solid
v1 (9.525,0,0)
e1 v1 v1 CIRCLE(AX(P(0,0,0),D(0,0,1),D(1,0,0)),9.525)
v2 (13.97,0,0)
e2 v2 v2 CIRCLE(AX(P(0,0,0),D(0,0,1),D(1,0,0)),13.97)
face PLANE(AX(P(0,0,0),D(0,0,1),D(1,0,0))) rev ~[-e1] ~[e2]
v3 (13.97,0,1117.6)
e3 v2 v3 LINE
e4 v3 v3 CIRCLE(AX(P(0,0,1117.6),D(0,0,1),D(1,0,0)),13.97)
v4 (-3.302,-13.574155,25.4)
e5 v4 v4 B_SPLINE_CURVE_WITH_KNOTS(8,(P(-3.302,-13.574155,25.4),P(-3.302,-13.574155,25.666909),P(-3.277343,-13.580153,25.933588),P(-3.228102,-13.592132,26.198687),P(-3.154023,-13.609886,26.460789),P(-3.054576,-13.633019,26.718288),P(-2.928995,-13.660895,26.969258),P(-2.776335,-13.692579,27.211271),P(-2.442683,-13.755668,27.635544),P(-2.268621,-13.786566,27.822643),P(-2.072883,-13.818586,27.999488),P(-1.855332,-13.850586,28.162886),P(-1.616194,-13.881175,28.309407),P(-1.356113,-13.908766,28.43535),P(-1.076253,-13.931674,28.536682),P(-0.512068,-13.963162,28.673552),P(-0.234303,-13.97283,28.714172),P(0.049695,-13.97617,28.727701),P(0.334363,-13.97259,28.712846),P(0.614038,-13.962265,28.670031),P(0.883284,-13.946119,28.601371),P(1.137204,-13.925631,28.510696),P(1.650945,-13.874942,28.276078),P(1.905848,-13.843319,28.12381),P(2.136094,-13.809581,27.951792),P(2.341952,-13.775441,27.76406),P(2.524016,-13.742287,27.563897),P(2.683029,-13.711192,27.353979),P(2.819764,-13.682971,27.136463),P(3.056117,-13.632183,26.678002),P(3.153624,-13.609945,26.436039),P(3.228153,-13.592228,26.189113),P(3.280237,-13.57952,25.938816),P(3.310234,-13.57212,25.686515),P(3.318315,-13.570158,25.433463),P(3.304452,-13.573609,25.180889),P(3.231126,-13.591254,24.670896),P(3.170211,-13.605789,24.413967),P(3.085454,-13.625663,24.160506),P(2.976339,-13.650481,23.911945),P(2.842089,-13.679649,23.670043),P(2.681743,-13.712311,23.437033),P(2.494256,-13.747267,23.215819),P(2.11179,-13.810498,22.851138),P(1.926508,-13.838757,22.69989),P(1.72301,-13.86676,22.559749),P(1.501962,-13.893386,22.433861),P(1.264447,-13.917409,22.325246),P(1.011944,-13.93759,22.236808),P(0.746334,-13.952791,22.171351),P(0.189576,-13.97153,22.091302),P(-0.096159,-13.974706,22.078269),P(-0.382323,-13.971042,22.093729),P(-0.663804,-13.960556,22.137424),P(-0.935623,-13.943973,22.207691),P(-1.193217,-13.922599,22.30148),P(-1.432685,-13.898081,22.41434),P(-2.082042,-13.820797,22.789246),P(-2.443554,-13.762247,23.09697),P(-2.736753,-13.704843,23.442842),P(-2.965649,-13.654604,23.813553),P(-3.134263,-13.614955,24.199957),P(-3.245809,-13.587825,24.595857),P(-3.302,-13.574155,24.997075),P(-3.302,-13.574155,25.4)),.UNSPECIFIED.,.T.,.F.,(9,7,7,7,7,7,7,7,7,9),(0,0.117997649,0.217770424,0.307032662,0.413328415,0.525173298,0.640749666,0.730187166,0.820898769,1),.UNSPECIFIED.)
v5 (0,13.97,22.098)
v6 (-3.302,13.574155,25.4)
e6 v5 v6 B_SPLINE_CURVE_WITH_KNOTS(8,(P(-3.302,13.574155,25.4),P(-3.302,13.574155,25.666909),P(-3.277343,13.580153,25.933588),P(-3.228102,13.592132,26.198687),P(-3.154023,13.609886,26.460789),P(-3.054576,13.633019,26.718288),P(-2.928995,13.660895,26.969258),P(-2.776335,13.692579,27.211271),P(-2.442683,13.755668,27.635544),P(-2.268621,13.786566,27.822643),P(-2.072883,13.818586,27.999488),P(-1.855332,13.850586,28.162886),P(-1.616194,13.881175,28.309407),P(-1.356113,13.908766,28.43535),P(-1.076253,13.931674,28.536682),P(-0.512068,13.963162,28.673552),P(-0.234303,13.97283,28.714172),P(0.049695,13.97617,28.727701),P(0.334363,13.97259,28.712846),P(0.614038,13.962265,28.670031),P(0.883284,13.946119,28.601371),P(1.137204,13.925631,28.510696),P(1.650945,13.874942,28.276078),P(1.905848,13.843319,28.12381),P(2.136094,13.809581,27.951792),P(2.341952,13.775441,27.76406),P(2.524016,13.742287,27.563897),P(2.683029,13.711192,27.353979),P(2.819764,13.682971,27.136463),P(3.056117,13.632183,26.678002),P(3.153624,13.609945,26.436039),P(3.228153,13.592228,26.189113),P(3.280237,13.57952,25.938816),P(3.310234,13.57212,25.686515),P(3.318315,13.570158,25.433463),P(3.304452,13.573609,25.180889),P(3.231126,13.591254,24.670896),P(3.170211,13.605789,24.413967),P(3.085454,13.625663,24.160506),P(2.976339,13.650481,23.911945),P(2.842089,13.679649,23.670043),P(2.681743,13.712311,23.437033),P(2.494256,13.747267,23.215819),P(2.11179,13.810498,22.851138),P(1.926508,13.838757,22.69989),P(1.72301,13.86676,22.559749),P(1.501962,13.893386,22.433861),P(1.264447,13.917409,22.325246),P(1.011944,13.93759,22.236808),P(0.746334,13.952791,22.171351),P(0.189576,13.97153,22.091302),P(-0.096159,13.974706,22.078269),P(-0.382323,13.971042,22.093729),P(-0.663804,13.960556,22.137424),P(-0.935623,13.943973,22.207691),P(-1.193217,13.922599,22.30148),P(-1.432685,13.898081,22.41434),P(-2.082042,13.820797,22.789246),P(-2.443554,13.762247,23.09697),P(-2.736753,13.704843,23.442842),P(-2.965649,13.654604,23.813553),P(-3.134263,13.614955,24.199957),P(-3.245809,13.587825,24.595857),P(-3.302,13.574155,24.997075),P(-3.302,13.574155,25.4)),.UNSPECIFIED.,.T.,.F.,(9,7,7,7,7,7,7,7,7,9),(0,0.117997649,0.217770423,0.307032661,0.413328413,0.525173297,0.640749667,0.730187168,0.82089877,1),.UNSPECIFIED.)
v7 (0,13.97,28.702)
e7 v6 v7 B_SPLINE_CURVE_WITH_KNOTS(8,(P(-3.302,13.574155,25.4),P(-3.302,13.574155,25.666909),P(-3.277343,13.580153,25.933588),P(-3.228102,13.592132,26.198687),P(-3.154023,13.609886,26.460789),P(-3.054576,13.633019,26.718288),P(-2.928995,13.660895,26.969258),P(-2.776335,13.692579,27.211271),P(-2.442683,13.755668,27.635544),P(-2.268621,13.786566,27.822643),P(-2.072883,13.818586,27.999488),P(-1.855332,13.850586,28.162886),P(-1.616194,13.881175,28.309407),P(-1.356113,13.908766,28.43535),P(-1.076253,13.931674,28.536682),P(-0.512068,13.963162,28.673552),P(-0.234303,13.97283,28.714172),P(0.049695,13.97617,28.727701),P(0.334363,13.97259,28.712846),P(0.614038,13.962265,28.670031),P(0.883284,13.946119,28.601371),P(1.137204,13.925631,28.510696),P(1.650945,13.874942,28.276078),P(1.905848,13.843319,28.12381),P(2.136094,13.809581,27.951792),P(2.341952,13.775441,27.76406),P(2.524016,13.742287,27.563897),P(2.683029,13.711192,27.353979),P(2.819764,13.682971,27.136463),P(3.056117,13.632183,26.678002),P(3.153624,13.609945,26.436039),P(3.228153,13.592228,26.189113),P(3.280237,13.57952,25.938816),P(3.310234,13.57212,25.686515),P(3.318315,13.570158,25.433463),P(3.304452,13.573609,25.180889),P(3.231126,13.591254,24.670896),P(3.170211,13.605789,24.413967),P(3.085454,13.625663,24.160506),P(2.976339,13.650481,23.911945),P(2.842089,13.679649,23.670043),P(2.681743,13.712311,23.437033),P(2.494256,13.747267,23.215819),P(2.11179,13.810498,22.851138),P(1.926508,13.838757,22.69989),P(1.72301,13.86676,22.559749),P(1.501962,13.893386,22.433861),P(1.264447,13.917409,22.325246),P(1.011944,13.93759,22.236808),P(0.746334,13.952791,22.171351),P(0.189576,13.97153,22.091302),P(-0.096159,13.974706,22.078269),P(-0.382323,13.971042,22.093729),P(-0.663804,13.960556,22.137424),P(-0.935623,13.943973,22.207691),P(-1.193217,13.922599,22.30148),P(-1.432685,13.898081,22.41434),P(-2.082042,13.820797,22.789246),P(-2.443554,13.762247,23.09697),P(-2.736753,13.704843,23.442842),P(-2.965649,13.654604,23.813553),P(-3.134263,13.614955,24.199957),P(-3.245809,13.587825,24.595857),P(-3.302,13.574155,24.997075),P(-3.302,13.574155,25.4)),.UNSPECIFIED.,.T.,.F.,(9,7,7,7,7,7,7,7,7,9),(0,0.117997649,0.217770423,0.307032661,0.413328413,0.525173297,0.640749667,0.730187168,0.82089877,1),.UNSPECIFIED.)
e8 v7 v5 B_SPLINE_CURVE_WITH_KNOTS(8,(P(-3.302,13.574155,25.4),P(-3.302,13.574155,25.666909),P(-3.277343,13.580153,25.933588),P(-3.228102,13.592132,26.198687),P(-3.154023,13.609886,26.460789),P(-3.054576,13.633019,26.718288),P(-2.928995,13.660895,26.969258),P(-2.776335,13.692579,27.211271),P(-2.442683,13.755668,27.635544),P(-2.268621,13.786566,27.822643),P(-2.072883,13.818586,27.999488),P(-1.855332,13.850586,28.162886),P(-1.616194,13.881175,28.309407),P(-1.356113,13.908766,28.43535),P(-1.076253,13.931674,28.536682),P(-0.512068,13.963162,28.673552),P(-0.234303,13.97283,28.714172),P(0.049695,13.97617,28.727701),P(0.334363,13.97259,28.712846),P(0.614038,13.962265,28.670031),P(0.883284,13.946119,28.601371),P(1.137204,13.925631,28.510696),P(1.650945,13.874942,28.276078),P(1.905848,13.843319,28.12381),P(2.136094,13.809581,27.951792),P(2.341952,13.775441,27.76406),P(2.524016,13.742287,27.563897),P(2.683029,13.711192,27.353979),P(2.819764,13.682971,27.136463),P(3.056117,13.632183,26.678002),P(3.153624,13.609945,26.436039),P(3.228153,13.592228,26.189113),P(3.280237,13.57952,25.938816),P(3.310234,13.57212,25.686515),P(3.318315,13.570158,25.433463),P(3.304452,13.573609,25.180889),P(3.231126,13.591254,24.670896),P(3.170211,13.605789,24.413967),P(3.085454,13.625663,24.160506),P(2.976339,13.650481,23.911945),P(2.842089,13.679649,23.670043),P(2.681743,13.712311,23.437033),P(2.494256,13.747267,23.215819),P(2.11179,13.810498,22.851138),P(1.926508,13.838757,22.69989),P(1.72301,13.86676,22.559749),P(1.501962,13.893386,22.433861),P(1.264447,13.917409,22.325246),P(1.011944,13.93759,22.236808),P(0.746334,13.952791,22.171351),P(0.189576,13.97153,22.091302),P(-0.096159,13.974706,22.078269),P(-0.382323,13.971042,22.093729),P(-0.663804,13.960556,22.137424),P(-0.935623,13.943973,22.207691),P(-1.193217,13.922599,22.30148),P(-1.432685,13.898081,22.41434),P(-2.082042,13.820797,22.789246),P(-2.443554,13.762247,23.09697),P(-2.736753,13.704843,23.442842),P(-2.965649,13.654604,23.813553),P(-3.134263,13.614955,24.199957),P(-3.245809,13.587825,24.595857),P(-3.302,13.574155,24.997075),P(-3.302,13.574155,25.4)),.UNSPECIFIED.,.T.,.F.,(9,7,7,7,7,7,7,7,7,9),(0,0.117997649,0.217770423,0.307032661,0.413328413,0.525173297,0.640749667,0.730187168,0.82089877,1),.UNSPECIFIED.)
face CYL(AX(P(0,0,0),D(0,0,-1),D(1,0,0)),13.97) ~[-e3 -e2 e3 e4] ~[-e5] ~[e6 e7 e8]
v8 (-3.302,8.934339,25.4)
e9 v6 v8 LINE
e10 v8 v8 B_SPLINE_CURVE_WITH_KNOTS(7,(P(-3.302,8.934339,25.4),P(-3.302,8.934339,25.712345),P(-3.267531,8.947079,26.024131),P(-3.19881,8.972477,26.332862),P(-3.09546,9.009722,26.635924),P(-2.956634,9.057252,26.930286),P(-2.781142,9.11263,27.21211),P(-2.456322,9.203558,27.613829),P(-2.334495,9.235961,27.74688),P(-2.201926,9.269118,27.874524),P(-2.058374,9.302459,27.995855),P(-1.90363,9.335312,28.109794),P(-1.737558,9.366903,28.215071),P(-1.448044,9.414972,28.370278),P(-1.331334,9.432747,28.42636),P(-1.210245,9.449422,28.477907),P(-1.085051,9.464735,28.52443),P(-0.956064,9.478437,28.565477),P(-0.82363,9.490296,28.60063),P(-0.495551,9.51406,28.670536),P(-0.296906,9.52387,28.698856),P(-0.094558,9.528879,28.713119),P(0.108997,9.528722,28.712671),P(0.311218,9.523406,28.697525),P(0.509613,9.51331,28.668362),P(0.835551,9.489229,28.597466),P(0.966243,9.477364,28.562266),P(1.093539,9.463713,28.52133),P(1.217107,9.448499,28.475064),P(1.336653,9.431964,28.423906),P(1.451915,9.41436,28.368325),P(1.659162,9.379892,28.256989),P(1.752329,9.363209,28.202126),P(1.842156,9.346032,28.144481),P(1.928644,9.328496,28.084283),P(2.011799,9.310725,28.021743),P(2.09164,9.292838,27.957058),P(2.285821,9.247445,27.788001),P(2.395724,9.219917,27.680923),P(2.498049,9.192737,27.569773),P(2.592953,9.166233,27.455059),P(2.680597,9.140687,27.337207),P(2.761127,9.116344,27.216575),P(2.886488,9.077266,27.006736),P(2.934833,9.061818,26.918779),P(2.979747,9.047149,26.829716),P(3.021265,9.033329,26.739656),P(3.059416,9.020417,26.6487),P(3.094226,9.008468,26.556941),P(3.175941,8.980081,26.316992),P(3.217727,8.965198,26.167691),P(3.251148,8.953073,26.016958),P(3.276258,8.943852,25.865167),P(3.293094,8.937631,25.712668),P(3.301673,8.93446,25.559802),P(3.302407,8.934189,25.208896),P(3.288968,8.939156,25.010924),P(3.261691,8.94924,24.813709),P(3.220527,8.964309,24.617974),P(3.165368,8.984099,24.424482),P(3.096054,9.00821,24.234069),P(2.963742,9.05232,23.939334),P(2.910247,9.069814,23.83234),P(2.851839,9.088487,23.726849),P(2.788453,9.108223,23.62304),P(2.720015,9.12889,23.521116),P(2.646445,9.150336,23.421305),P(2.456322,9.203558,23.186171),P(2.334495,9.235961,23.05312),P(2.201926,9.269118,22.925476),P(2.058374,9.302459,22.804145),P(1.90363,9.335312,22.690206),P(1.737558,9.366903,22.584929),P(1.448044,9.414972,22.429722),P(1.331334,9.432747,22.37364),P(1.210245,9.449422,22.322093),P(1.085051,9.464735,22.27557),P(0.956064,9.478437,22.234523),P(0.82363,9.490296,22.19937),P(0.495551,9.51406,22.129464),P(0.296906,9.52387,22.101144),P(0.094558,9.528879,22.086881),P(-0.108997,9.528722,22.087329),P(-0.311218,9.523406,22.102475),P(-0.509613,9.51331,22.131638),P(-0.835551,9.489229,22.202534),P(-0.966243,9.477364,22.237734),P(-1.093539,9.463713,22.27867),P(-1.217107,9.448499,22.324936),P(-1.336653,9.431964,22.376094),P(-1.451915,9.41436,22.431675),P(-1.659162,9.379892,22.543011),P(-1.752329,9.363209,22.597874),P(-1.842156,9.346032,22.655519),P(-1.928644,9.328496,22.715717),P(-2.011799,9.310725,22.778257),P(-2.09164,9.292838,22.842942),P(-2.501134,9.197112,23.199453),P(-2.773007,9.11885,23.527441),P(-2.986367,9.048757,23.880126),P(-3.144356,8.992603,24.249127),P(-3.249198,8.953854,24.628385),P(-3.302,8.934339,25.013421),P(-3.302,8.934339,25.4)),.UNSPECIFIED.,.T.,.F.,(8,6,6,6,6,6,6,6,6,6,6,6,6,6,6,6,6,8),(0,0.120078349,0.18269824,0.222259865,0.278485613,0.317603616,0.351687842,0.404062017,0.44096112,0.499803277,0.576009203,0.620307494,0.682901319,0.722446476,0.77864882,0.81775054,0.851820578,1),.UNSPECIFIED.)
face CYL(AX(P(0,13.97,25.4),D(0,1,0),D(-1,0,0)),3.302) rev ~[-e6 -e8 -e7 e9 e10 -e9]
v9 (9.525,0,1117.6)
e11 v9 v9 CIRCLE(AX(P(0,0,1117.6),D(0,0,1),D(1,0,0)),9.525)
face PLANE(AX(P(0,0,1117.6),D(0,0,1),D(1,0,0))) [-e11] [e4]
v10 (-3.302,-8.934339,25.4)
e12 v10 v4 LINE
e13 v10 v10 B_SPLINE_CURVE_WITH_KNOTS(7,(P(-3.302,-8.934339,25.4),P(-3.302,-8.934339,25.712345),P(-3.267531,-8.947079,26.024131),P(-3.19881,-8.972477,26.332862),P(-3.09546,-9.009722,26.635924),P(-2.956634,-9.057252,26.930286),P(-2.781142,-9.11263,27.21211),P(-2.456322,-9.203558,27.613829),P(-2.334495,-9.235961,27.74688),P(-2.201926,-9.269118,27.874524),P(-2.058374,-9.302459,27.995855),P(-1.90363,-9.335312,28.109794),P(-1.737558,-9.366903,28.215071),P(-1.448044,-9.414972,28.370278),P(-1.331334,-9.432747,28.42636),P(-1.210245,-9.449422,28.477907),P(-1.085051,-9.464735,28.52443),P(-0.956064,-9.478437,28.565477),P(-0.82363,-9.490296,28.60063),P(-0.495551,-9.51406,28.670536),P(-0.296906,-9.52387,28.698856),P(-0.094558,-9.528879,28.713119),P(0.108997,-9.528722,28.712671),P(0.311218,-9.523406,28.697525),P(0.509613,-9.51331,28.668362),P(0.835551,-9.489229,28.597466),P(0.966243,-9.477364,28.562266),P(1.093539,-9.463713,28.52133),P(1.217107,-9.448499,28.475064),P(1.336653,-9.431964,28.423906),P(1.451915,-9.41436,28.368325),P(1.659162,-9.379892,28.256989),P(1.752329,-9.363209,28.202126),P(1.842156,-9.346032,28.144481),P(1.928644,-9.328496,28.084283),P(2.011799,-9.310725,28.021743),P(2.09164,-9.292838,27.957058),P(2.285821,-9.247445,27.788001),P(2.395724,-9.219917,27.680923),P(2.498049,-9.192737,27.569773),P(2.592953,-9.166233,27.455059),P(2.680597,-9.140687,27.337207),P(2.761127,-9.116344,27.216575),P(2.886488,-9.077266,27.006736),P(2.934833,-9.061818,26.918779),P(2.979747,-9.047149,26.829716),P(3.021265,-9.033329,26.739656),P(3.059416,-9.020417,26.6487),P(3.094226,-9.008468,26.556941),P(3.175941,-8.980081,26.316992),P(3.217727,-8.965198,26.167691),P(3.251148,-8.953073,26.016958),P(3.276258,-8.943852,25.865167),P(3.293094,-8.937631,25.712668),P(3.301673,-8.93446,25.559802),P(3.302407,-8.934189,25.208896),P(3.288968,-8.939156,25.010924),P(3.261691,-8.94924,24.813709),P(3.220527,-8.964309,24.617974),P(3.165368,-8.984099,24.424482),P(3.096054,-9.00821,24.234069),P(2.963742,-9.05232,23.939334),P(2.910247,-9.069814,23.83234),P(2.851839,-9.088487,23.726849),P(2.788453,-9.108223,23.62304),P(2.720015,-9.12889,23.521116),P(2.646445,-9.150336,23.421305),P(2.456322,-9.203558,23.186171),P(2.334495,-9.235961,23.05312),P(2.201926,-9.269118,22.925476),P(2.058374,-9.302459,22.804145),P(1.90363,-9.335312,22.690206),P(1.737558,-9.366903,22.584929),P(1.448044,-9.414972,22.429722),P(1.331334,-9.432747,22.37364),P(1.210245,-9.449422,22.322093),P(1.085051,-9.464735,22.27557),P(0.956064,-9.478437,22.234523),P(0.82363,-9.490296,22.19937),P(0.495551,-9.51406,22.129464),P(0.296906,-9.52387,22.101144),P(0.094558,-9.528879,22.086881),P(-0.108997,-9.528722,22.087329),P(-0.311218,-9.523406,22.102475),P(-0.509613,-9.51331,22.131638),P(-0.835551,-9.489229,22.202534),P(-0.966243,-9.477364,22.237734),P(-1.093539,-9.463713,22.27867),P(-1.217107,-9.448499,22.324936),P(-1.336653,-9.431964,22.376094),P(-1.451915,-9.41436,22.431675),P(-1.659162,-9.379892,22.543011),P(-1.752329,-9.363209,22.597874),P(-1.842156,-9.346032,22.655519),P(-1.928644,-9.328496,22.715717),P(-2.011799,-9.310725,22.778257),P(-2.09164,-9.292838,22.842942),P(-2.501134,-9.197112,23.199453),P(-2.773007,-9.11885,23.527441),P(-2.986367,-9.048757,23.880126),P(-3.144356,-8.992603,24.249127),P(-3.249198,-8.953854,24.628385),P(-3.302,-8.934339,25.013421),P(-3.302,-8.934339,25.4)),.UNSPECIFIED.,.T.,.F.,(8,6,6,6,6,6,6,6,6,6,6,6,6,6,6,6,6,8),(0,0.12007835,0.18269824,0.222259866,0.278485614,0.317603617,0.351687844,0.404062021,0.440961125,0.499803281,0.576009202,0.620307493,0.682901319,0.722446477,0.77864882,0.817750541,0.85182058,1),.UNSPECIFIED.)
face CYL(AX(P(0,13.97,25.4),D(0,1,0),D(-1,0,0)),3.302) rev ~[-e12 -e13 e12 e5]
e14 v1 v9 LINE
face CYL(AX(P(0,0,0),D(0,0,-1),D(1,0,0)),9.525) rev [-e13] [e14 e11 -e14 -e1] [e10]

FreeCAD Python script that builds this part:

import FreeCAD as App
import Part
import Sketcher
Q = App.Units.Quantity

doc = App.newDocument("Part")
params = doc.addObject("Spreadsheet::Sheet", "Params")
for row, (alias, value) in enumerate([
    ("sketch1_diameter", "1.1 in"),
    ("sketch1_diameter2", "0.75 in"),
    ("pad1_length", "44 in"),
    ("sketch2_diameter", "0.26 in"),
], start=1):
    params.set(f"A{row}", alias)
    params.set(f"B{row}", "=" + value)
    params.setAlias(f"B{row}", alias)

body = doc.addObject("PartDesign::Body", "Body")

# Sketch on XY plane
sketch1 = body.newObject("Sketcher::SketchObject", "Sketch")
sketch1.AttachmentSupport = (doc.getObject("XY_Plane"), [""])
sketch1.MapMode = "FlatFace"
sketch1.addGeometry([
    Part.Circle(App.Vector(0, 0, 0), App.Vector(0, 0, 1), 14),
    Part.Circle(App.Vector(0, 0, 0), App.Vector(0, 0, 1), 10),
], False)
sketch1.addConstraint([
    Sketcher.Constraint("Coincident", 0, 3, -1, 1),
    Sketcher.Constraint("Coincident", 1, 3, -1, 1),
    Sketcher.Constraint("Diameter", 0, Q("1.1 in")),
    Sketcher.Constraint("Diameter", 1, Q("0.75 in")),
])
sketch1.setExpression("Constraints[2]", "Params.sketch1_diameter")
sketch1.setExpression("Constraints[3]", "Params.sketch1_diameter2")
pad1 = body.newObject("PartDesign::Pad", "Pad")
pad1.Profile = sketch1
pad1.setExpression("Length", "Params.pad1_length")

# Sketch on XZ plane
sketch2 = body.newObject("Sketcher::SketchObject", "Sketch001")
sketch2.AttachmentSupport = (doc.getObject("XZ_Plane"), [""])
sketch2.MapMode = "FlatFace"
sketch2.AttachmentOffset = App.Placement(App.Vector(0, 0, -0.55 * 25.4), App.Rotation())
sketch2.addGeometry(Part.Circle(App.Vector(0, 25.4, 0), App.Vector(0, 0, 1), 3.3), False)
sketch2.addConstraint([
    Sketcher.Constraint("PointOnObject", 0, 3, -2),
    Sketcher.Constraint("Diameter", 0, Q("0.26 in")),
    Sketcher.Constraint("DistanceY", -1, 1, 0, 3, Q("1 in")),
])
sketch2.setExpression("Constraints[1]", "Params.sketch2_diameter")
pocket1 = body.newObject("PartDesign::Pocket", "Pocket")
pocket1.Profile = sketch2
pocket1.Type = "ThroughAll"
pocket1.Reversed = True

doc.recompute()
